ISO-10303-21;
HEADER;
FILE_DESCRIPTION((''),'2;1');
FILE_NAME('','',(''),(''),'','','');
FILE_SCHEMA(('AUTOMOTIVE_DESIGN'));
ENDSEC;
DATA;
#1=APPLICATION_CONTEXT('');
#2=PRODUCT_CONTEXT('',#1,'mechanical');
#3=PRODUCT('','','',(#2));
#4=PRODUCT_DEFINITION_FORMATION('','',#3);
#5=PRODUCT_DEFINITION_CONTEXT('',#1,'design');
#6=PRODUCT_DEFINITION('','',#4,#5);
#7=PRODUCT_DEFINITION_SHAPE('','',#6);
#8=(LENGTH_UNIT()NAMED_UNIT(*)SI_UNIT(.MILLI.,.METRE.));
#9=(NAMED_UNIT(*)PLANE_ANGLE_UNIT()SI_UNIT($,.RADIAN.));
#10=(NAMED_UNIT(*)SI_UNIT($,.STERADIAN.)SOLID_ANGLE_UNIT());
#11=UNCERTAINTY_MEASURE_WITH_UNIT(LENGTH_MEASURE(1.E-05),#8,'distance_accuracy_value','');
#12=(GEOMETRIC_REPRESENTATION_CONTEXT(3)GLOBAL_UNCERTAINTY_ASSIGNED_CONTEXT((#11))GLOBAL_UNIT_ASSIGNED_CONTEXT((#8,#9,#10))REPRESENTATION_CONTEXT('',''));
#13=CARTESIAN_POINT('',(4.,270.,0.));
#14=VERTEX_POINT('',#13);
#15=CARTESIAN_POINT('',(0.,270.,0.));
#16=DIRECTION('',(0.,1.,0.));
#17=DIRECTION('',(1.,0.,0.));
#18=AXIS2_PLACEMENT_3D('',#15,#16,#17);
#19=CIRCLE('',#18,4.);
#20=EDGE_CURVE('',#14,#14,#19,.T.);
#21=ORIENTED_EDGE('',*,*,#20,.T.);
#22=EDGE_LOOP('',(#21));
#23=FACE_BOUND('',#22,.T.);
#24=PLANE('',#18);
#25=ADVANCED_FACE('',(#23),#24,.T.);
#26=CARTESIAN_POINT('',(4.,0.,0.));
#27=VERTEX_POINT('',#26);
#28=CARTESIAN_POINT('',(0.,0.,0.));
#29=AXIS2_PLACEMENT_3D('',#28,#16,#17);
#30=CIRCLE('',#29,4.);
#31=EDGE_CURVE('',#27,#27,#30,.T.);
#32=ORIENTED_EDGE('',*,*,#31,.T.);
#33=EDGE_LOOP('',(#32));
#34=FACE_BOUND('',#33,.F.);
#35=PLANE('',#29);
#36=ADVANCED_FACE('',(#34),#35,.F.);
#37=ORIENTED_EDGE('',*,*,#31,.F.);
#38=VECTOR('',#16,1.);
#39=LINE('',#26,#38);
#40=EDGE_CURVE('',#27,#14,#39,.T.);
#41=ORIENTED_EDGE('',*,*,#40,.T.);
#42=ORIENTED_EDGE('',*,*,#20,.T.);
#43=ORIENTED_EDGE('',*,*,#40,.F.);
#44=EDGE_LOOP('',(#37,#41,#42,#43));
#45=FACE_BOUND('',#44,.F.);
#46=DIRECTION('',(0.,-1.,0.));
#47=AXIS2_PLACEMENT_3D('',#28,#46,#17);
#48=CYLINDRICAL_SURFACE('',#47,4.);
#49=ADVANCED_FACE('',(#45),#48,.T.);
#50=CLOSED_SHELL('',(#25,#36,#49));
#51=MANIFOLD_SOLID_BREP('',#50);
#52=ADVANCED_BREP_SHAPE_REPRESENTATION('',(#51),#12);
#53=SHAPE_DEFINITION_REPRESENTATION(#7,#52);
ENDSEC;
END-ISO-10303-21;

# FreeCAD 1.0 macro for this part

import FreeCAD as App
import Part
import Sketcher

V = App.Vector
Q = App.Units.Quantity

doc = App.newDocument("Part")
params = doc.addObject("Spreadsheet::Sheet", "Params")
for row, (alias, value) in enumerate([
    ("sketch1_diameter", "8 mm"),
    ("pad1_length", "270 mm"),
], start=1):
    params.set(f"A{row}", alias)
    params.set(f"B{row}", "=" + value)
    params.setAlias(f"B{row}", alias)

body = doc.addObject("PartDesign::Body", "Body")

# Sketch on XZ plane
sketch1 = body.newObject("Sketcher::SketchObject", "Sketch")
sketch1.AttachmentSupport = (doc.getObject("XZ_Plane"), [""])
sketch1.MapMode = "FlatFace"
sketch1.addGeometry(Part.Circle(V(0, 0, 0), V(0, 0, 1), 4), False)
sketch1.addConstraint([
    Sketcher.Constraint("Coincident", 0, 3, -1, 1),
    Sketcher.Constraint("Diameter", 0, Q("8 mm")),
])
sketch1.setExpression("Constraints[1]", "Params.sketch1_diameter")
pad1 = body.newObject("PartDesign::Pad", "Pad")
pad1.Profile = sketch1
pad1.setExpression("Length", "Params.pad1_length")
pad1.Reversed = True

doc.recompute()
